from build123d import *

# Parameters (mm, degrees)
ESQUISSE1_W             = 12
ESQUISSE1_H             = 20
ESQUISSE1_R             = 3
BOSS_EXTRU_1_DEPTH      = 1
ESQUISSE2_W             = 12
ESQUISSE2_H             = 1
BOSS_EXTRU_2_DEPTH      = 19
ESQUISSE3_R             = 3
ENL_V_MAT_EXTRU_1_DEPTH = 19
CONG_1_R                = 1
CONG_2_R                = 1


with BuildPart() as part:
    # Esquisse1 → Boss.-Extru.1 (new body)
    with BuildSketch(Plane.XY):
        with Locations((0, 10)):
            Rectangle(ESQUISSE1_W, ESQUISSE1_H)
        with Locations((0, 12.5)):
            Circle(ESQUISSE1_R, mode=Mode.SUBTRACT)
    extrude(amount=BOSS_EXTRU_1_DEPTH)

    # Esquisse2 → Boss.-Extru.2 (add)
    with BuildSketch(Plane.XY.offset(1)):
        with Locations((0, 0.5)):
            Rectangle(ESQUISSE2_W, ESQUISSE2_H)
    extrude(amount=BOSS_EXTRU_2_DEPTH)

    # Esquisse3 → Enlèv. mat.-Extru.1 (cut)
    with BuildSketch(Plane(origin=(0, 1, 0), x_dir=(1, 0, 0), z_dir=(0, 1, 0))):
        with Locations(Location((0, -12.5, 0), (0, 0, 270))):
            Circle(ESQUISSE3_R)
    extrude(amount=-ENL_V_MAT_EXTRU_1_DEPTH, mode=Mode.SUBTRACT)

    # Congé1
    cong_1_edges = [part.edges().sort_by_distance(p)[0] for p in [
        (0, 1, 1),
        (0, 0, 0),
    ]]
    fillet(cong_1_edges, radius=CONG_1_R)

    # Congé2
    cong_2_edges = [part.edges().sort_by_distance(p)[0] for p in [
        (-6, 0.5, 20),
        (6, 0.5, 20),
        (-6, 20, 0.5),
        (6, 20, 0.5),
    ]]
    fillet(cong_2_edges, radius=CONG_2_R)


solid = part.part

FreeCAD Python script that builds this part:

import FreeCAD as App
import Part
import Sketcher

V = App.Vector


def edges_at(feature, points):
    """Names of the edges that pass closest to the given points."""
    edges = feature.Shape.Edges
    near = lambda p: min(range(len(edges)), key=lambda i: edges[i].distToShape(Part.Vertex(*p))[0])
    return sorted({f"Edge{near(p) + 1}" for p in points})


def add_polygon(sketch, points):
    """Adds a closed chain of lines whose ends are joined by coincident constraints."""
    first, n = sketch.GeometryCount, len(points)
    for a, b in zip(points, points[1:] + points[:1]):
        sketch.addGeometry(Part.LineSegment(App.Vector(*a, 0), App.Vector(*b, 0)), False)
    for i in range(n):
        sketch.addConstraint(Sketcher.Constraint("Coincident", first + i, 2, first + (i + 1) % n, 1))

doc = App.newDocument("Part")
params = doc.addObject("Spreadsheet::Sheet", "Params")
for row, (alias, value) in enumerate([
    ("sketch1_diameter", "6 mm"),
    ("sketch1_width", "12 mm"),
    ("sketch1_height", "20 mm"),
    ("pad1_length", "1 mm"),
    ("sketch2_width", "12 mm"),
    ("sketch2_height", "1 mm"),
    ("pad2_length", "19 mm"),
    ("sketch3_diameter", "6 mm"),
    ("pocket1_length", "19 mm"),
    ("fillet_radius", "1 mm"),
    ("fillet2_radius", "1 mm"),
], start=1):
    params.set(f"A{row}", alias)
    params.set(f"B{row}", "=" + value)
    params.setAlias(f"B{row}", alias)

body = doc.addObject("PartDesign::Body", "Body")

sketch1 = body.newObject("Sketcher::SketchObject", "Sketch")
sketch1.AttachmentSupport = (doc.getObject("XY_Plane"), [""])
sketch1.MapMode = "FlatFace"
add_polygon(sketch1, [(-6, 20), (-6, 0), (6, 0), (6, 20)])
sketch1.addGeometry(Part.Circle(V(0, 12.5, 0), V(0, 0, 1), 3), False)
sketch1.addConstraint([
    Sketcher.Constraint("Vertical", 0),
    Sketcher.Constraint("Horizontal", 1),
    Sketcher.Constraint("Vertical", 2),
    Sketcher.Constraint("Horizontal", 3),
    Sketcher.Constraint("Symmetric", 0, 2, 1, 2, -1, 1),
    Sketcher.Constraint("PointOnObject", 4, 3, -2),
    Sketcher.Constraint("Diameter", 4, 6.0),
    Sketcher.Constraint("DistanceX", 1, 1, 1, 2, 12.0),
    Sketcher.Constraint("DistanceY", 0, 2, 0, 1, 20.0),
    Sketcher.Constraint("DistanceY", -1, 1, 4, 3, 12.5),
])
sketch1.setExpression("Constraints[10]", "Params.sketch1_diameter")
sketch1.setExpression("Constraints[11]", "Params.sketch1_width")
sketch1.setExpression("Constraints[12]", "Params.sketch1_height")
pad1 = body.newObject("PartDesign::Pad", "Pad")
pad1.Profile = sketch1
pad1.setExpression("Length", "Params.pad1_length")

sketch2 = body.newObject("Sketcher::SketchObject", "Sketch001")
sketch2.AttachmentSupport = (doc.getObject("XY_Plane"), [""])
sketch2.MapMode = "FlatFace"
sketch2.AttachmentOffset = App.Placement(V(0, 0, 1), App.Rotation())
add_polygon(sketch2, [(-6, 1), (-6, 0), (6, 0), (6, 1)])
sketch2.addConstraint([
    Sketcher.Constraint("Vertical", 0),
    Sketcher.Constraint("Horizontal", 1),
    Sketcher.Constraint("Vertical", 2),
    Sketcher.Constraint("Horizontal", 3),
    Sketcher.Constraint("Symmetric", 0, 2, 1, 2, -1, 1),
    Sketcher.Constraint("DistanceX", 1, 1, 1, 2, 12.0),
    Sketcher.Constraint("DistanceY", 0, 2, 0, 1, 1.0),
])
sketch2.setExpression("Constraints[9]", "Params.sketch2_width")
sketch2.setExpression("Constraints[10]", "Params.sketch2_height")
pad2 = body.newObject("PartDesign::Pad", "Pad001")
pad2.Profile = sketch2
pad2.setExpression("Length", "Params.pad2_length")

sketch3 = body.newObject("Sketcher::SketchObject", "Sketch002")
sketch3.AttachmentSupport = (doc.getObject("XZ_Plane"), [""])
sketch3.MapMode = "FlatFace"
sketch3.AttachmentOffset = App.Placement(V(0, 0, -1), App.Rotation())
sketch3.addGeometry(Part.Circle(V(0, 12.5, 0), V(0, 0, 1), 3), False)
sketch3.addConstraint([
    Sketcher.Constraint("PointOnObject", 0, 3, -2),
    Sketcher.Constraint("Diameter", 0, 6.0),
    Sketcher.Constraint("DistanceY", -1, 1, 0, 3, 12.5),
])
sketch3.setExpression("Constraints[1]", "Params.sketch3_diameter")
pocket1 = body.newObject("PartDesign::Pocket", "Pocket")
pocket1.Profile = sketch3
pocket1.setExpression("Length", "Params.pocket1_length")
pocket1.Reversed = True
doc.recompute()

fillet = body.newObject("PartDesign::Fillet", "Fillet")
fillet.Base = (pocket1, edges_at(pocket1, [(0, 1, 1), (0, 0, 0)]))
fillet.setExpression("Radius", "Params.fillet_radius")
doc.recompute()

fillet2 = body.newObject("PartDesign::Fillet", "Fillet001")
fillet2.Base = (fillet, edges_at(fillet, [
    (-6, 0.5, 20),
    (6, 0.5, 20),
    (-6, 20, 0.5),
    (6, 20, 0.5),
]))
fillet2.setExpression("Radius", "Params.fillet2_radius")

doc.recompute()
